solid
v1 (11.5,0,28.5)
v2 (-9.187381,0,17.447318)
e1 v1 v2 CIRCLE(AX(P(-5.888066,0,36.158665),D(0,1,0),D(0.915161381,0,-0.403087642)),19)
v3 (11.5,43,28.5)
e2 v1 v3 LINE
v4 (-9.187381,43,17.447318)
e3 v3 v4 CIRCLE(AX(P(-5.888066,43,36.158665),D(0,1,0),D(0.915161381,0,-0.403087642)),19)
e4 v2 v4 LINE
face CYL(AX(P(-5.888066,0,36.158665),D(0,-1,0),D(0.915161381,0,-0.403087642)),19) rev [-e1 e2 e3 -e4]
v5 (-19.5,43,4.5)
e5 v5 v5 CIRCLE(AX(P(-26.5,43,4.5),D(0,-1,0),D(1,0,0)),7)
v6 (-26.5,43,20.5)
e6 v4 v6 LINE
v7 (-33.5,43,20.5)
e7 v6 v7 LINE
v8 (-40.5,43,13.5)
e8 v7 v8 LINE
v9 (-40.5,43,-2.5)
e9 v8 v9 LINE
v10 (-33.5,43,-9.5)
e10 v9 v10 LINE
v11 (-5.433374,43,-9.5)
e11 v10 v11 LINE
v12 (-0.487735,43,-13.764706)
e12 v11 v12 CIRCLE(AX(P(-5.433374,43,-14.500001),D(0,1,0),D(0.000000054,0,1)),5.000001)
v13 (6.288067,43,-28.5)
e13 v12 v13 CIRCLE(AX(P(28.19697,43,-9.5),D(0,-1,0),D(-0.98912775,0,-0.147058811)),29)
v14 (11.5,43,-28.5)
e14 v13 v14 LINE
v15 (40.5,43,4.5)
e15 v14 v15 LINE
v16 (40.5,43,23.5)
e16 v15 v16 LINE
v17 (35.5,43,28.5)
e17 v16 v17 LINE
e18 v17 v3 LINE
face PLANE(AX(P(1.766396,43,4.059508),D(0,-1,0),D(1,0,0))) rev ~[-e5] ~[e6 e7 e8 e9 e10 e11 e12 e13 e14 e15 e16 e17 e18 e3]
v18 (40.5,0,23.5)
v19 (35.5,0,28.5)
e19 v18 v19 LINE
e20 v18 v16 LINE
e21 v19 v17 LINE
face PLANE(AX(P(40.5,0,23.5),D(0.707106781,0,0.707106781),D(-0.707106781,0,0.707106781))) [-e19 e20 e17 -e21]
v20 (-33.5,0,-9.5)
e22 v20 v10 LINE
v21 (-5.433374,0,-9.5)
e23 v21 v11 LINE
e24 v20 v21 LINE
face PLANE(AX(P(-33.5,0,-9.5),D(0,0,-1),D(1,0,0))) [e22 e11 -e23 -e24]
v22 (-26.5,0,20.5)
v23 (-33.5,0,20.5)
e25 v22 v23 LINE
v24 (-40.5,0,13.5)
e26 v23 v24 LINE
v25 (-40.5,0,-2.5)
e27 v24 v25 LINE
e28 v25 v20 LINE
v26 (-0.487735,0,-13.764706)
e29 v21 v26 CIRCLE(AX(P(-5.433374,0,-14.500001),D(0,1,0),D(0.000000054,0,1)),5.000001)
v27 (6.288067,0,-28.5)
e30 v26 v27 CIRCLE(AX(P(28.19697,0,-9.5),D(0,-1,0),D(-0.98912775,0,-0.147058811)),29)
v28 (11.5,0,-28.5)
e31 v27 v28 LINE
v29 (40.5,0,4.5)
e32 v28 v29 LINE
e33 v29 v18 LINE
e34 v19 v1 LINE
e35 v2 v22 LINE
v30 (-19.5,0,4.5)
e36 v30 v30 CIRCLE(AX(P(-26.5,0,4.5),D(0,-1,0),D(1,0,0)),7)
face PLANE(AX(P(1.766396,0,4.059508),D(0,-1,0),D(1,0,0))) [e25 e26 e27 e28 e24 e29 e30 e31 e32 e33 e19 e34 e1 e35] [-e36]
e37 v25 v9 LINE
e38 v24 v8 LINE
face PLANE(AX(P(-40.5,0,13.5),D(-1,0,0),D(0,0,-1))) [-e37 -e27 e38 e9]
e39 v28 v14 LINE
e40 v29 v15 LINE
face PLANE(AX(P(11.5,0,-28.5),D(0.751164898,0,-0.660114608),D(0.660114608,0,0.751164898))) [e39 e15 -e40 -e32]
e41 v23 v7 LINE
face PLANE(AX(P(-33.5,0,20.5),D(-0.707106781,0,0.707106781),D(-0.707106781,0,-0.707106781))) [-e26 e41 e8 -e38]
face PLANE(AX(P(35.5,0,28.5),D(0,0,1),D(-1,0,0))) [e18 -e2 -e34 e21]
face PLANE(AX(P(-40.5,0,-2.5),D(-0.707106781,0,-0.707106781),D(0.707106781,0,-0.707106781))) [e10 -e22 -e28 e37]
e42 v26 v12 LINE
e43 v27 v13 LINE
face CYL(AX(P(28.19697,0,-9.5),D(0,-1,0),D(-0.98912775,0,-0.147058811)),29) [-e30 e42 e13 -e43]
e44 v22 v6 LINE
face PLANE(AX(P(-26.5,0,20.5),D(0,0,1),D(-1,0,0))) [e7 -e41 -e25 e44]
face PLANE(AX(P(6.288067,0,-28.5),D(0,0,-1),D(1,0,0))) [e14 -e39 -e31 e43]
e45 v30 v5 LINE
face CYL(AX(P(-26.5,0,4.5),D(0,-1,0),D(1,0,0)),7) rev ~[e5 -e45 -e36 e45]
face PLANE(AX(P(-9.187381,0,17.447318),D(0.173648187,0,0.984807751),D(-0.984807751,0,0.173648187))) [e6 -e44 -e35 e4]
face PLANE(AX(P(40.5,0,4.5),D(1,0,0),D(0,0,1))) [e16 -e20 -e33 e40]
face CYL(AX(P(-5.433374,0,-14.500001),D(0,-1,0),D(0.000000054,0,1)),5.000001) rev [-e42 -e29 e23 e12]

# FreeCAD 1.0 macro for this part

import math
import FreeCAD as App
import Part
import Sketcher
Q = App.Units.Quantity

doc = App.newDocument("Part")
body = doc.addObject("PartDesign::Body", "Body")

sketch1 = body.newObject("Sketcher::SketchObject", "Sketch")
sketch1.AttachmentSupport = (doc.getObject("XZ_Plane"), [""])
sketch1.MapMode = "FlatFace"
sketch1.addGeometry([
    Part.LineSegment(App.Vector(40, 24, 0), App.Vector(36, 28, 0)),
    Part.LineSegment(App.Vector(36, 28, 0), App.Vector(12, 28, 0)),
    Part.ArcOfCircle(Part.Circle(App.Vector(-6, 36, 0), App.Vector(0, 0, 1), 19), math.radians(-100), math.radians(-24)),
    Part.LineSegment(App.Vector(-9, 17, 0), App.Vector(-26, 20, 0)),
    Part.LineSegment(App.Vector(-26, 20, 0), App.Vector(-34, 20, 0)),
    Part.LineSegment(App.Vector(-34, 20, 0), App.Vector(-40, 14, 0)),
    Part.LineSegment(App.Vector(-40, 14, 0), App.Vector(-40, -2, 0)),
    Part.LineSegment(App.Vector(-40, -2, 0), App.Vector(-34, -10, 0)),
    Part.LineSegment(App.Vector(-34, -10, 0), App.Vector(-5, -10, 0)),
    Part.ArcOfCircle(Part.Circle(App.Vector(-5, -15, 0), App.Vector(0, 0, 1), 5), math.radians(8), math.radians(90)),
    Part.ArcOfCircle(Part.Circle(App.Vector(28, -10, 0), App.Vector(0, 0, 1), 29), math.radians(-172), math.radians(-139)),
    Part.LineSegment(App.Vector(6, -28, 0), App.Vector(12, -28, 0)),
    Part.LineSegment(App.Vector(12, -28, 0), App.Vector(40, 4, 0)),
    Part.LineSegment(App.Vector(40, 4, 0), App.Vector(40, 24, 0)),
    Part.Circle(App.Vector(-26, 4, 0), App.Vector(0, 0, 1), 7),
], False)
sketch1.addConstraint([
    Sketcher.Constraint("Coincident", 0, 2, 1, 1),
    Sketcher.Constraint("Coincident", 1, 2, 2, 2),
    Sketcher.Constraint("Tangent", 2, 1, 3, 1),
    Sketcher.Constraint("Coincident", 3, 2, 4, 1),
    Sketcher.Constraint("Coincident", 4, 2, 5, 1),
    Sketcher.Constraint("Coincident", 5, 2, 6, 1),
    Sketcher.Constraint("Coincident", 6, 2, 7, 1),
    Sketcher.Constraint("Coincident", 7, 2, 8, 1),
    Sketcher.Constraint("Tangent", 8, 2, 9, 2),
    Sketcher.Constraint("Tangent", 9, 1, 10, 1),
    Sketcher.Constraint("Coincident", 10, 2, 11, 1),
    Sketcher.Constraint("Coincident", 11, 2, 12, 1),
    Sketcher.Constraint("Coincident", 12, 2, 13, 1),
    Sketcher.Constraint("Coincident", 13, 2, 0, 1),
    Sketcher.Constraint("Horizontal", 1),
    Sketcher.Constraint("Horizontal", 4),
    Sketcher.Constraint("Vertical", 6),
    Sketcher.Constraint("Horizontal", 8),
    Sketcher.Constraint("Horizontal", 11),
    Sketcher.Constraint("Vertical", 13),
    Sketcher.Constraint("Symmetric", 1, 2, 11, 2, -1),
    Sketcher.Constraint("Perpendicular", 0, 5),
    Sketcher.Constraint("Perpendicular", 5, 7),
    Sketcher.Constraint("Horizontal", 10, 3, 7, 2),
    Sketcher.Constraint("Horizontal", 14, 3, 12, 2),
    Sketcher.Constraint("Vertical", 14, 3, 3, 2),
    Sketcher.Constraint("Vertical", 4, 2, 7, 2),
    Sketcher.Constraint("Equal", 5, 7),
    Sketcher.Constraint("Diameter", 14, Q("14 mm")),
    Sketcher.Constraint("Radius", 2, Q("19 mm")),
    Sketcher.Constraint("Radius", 9, Q("5.000001 mm")),
    Sketcher.Constraint("Radius", 10, Q("29 mm")),
    Sketcher.Constraint("DistanceX", 1, 2, 1, 1, Q("24 mm")),
    Sketcher.Constraint("DistanceX", 4, 2, 4, 1, Q("7 mm")),
    Sketcher.Constraint("DistanceY", 6, 2, 6, 1, Q("16 mm")),
    Sketcher.Constraint("DistanceY", 13, 1, 13, 2, Q("19 mm")),
    Sketcher.Constraint("Angle", 3, Q("169.999999 deg")),
    Sketcher.Constraint("DistanceY", 9, 3, 14, 3, Q("19.000001 mm")),
    Sketcher.Constraint("DistanceY", 10, 3, 0, 2, Q("38 mm")),
    Sketcher.Constraint("DistanceX", 14, 3, 0, 2, Q("62 mm")),
    Sketcher.Constraint("DistanceY", 14, 3, 3, 2, Q("16 mm")),
    Sketcher.Constraint("DistanceY", 10, 2, 9, 3, Q("13.999999 mm")),
    Sketcher.Constraint("DistanceX", 14, 3, -1, 1, Q("26.5 mm")),
    Sketcher.Constraint("DistanceX", 8, 1, 8, 2, Q("28.066626 mm")),
])
pad1 = body.newObject("PartDesign::Pad", "Pad")
pad1.Profile = sketch1
pad1.Length = 43
pad1.Reversed = True

doc.recompute()
